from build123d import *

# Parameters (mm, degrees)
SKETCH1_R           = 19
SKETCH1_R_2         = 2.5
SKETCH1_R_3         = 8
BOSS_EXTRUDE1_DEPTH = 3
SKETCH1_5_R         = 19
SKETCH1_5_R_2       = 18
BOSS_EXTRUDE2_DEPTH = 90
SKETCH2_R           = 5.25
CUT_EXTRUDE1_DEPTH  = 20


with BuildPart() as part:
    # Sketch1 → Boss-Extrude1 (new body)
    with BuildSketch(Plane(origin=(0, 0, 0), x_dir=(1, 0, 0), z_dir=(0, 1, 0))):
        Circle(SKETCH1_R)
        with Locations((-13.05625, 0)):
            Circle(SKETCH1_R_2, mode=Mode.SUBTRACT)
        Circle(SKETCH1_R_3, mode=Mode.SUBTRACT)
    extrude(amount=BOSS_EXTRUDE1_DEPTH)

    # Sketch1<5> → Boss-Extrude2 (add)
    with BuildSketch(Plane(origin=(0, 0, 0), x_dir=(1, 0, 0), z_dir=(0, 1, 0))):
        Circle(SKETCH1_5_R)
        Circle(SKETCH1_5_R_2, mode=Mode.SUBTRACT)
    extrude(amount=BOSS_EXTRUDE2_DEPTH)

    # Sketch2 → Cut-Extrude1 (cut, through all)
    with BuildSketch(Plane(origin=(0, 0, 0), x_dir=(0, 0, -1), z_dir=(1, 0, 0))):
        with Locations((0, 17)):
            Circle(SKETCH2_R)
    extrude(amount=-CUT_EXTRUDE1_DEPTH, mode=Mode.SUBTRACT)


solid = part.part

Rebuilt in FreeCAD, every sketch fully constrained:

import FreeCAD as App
import Part
import Sketcher

V = App.Vector

doc = App.newDocument("Part")
params = doc.addObject("Spreadsheet::Sheet", "Params")
for row, (alias, value) in enumerate([
    ("sketch1_diameter", "38 mm"),
    ("sketch1_diameter2", "5 mm"),
    ("sketch1_diameter3", "16 mm"),
    ("pad1_length", "3 mm"),
    ("sketch2_diameter", "38 mm"),
    ("sketch2_diameter2", "36 mm"),
    ("pad2_length", "90 mm"),
    ("sketch3_diameter", "10.5 mm"),
], start=1):
    params.set(f"A{row}", alias)
    params.set(f"B{row}", "=" + value)
    params.setAlias(f"B{row}", alias)

body = doc.addObject("PartDesign::Body", "Body")

sketch1 = body.newObject("Sketcher::SketchObject", "Sketch")
sketch1.AttachmentSupport = (doc.getObject("XZ_Plane"), [""])
sketch1.MapMode = "FlatFace"
sketch1.addGeometry([
    Part.Circle(V(0, 0, 0), V(0, 0, 1), 19),
    Part.Circle(V(-13.05625, 0, 0), V(0, 0, 1), 2.5),
    Part.Circle(V(0, 0, 0), V(0, 0, 1), 8),
], False)
sketch1.addConstraint([
    Sketcher.Constraint("Coincident", 0, 3, -1, 1),
    Sketcher.Constraint("Coincident", 2, 3, -1, 1),
    Sketcher.Constraint("PointOnObject", 1, 3, -1),
    Sketcher.Constraint("Diameter", 0, 38.0),
    Sketcher.Constraint("Diameter", 1, 5.0),
    Sketcher.Constraint("Diameter", 2, 16.0),
    Sketcher.Constraint("DistanceX", 1, 3, -1, 1, 13.05625),
])
sketch1.setExpression("Constraints[3]", "Params.sketch1_diameter")
sketch1.setExpression("Constraints[4]", "Params.sketch1_diameter2")
sketch1.setExpression("Constraints[5]", "Params.sketch1_diameter3")
pad1 = body.newObject("PartDesign::Pad", "Pad")
pad1.Profile = sketch1
pad1.setExpression("Length", "Params.pad1_length")
pad1.Reversed = True

sketch2 = body.newObject("Sketcher::SketchObject", "Sketch001")
sketch2.AttachmentSupport = (doc.getObject("XZ_Plane"), [""])
sketch2.MapMode = "FlatFace"
sketch2.addGeometry([
    Part.Circle(V(0, 0, 0), V(0, 0, 1), 19),
    Part.Circle(V(0, 0, 0), V(0, 0, 1), 18),
], False)
sketch2.addConstraint([
    Sketcher.Constraint("Coincident", 0, 3, -1, 1),
    Sketcher.Constraint("Coincident", 1, 3, -1, 1),
    Sketcher.Constraint("Diameter", 0, 38.0),
    Sketcher.Constraint("Diameter", 1, 36.0),
])
sketch2.setExpression("Constraints[2]", "Params.sketch2_diameter")
sketch2.setExpression("Constraints[3]", "Params.sketch2_diameter2")
pad2 = body.newObject("PartDesign::Pad", "Pad001")
pad2.Profile = sketch2
pad2.setExpression("Length", "Params.pad2_length")
pad2.Reversed = True

sketch3 = body.newObject("Sketcher::SketchObject", "Sketch002")
sketch3.AttachmentSupport = (doc.getObject("YZ_Plane"), [""])
sketch3.MapMode = "FlatFace"
sketch3.addGeometry(Part.Circle(V(17, 0, 0), V(0, 0, 1), 5.25), False)
sketch3.addConstraint([
    Sketcher.Constraint("PointOnObject", 0, 3, -1),
    Sketcher.Constraint("Diameter", 0, 10.5),
    Sketcher.Constraint("DistanceX", -1, 1, 0, 3, 17.0),
])
sketch3.setExpression("Constraints[1]", "Params.sketch3_diameter")
pocket1 = body.newObject("PartDesign::Pocket", "Pocket")
pocket1.Profile = sketch3
pocket1.Type = "ThroughAll"

doc.recompute()
